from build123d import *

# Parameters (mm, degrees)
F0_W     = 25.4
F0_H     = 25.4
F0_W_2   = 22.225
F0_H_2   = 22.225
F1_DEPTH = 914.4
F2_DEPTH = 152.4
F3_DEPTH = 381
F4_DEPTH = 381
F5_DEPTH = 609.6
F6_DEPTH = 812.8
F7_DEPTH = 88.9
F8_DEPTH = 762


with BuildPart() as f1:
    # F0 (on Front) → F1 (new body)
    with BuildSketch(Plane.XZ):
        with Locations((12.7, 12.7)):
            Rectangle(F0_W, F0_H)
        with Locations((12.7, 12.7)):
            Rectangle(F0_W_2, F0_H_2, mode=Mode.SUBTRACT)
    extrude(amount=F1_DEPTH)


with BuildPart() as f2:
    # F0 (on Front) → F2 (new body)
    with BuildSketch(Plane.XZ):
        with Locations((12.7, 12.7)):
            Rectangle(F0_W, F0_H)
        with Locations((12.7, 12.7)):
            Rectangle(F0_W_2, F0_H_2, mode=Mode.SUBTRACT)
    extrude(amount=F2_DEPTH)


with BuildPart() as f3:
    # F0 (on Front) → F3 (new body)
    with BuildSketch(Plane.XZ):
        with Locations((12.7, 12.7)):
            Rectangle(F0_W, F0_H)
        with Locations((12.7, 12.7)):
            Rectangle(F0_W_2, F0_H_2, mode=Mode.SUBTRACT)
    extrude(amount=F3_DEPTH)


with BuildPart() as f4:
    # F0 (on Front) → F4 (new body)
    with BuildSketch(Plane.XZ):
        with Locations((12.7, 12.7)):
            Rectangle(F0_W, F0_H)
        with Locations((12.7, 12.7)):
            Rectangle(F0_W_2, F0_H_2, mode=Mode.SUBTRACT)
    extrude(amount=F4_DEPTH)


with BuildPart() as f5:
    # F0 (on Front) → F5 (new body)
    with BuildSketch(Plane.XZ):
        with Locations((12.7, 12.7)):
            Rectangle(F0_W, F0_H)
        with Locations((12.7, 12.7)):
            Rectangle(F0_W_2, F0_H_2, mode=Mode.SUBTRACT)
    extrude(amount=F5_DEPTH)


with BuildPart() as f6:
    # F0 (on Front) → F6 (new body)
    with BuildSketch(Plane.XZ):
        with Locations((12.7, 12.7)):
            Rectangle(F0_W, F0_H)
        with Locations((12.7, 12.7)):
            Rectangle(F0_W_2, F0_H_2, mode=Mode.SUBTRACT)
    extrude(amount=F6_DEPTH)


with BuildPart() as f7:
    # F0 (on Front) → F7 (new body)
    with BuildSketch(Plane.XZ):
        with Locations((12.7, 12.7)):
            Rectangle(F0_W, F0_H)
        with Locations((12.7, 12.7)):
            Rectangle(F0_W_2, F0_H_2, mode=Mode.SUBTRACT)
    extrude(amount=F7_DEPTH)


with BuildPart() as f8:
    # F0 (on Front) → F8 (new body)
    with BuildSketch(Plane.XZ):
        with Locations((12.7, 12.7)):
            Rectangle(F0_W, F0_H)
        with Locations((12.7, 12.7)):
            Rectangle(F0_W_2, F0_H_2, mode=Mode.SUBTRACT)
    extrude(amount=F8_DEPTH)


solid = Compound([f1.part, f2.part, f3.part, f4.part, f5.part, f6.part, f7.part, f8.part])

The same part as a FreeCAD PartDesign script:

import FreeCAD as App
import Part
import Sketcher
from FreeCAD import Vector
Q = App.Units.Quantity


def add_polygon(sketch, points):
    """Adds a closed chain of lines whose ends are joined by coincident constraints."""
    first, n = sketch.GeometryCount, len(points)
    for a, b in zip(points, points[1:] + points[:1]):
        sketch.addGeometry(Part.LineSegment(App.Vector(*a, 0), App.Vector(*b, 0)), False)
    for i in range(n):
        sketch.addConstraint(Sketcher.Constraint("Coincident", first + i, 2, first + (i + 1) % n, 1))

doc = App.newDocument("Part")
body = doc.addObject("PartDesign::Body", "Body")

# Sketch on XZ plane
sketch1 = body.newObject("Sketcher::SketchObject", "Sketch")
sketch1.AttachmentSupport = (doc.getObject("XZ_Plane"), [""])
sketch1.MapMode = "FlatFace"
add_polygon(sketch1, [(0, 25), (0, 0), (25, 0), (25, 25)])  # lines 0-3
add_polygon(sketch1, [(24, 2), (2, 2), (2, 24), (24, 24)])  # lines 4-7
sketch1.addConstraint([
    Sketcher.Constraint("Vertical", 0),
    Sketcher.Constraint("Horizontal", 1),
    Sketcher.Constraint("Vertical", 2),
    Sketcher.Constraint("Horizontal", 3),
    Sketcher.Constraint("Horizontal", 4),
    Sketcher.Constraint("Vertical", 5),
    Sketcher.Constraint("Horizontal", 6),
    Sketcher.Constraint("Vertical", 7),
    Sketcher.Constraint("Coincident", 0, 2, -1, 1),
    Sketcher.Constraint("Equal", 3, 0),
    Sketcher.Constraint("Equal", 6, 5),
    Sketcher.Constraint("DistanceX", 1, 1, 1, 2, Q("1 in")),
    Sketcher.Constraint("DistanceX", 4, 2, 4, 1, Q("0.875 in")),
    Sketcher.Constraint("DistanceX", -1, 1, 4, 2, Q("0.0625 in")),
    Sketcher.Constraint("DistanceY", -1, 1, 4, 2, Q("0.0625 in")),
])
pad1 = body.newObject("PartDesign::Pad", "Pad")
pad1.Profile = sketch1
pad1.Length = Q("36 in")
body2 = doc.addObject("PartDesign::Body", "Body001")

# Sketch on XZ plane
sketch2 = body2.newObject("Sketcher::SketchObject", "Sketch001")
sketch2.AttachmentSupport = (doc.getObject("XZ_Plane001"), [""])
sketch2.MapMode = "FlatFace"
add_polygon(sketch2, [(0, 25), (0, 0), (25, 0), (25, 25)])  # lines 0-3
add_polygon(sketch2, [(24, 2), (2, 2), (2, 24), (24, 24)])  # lines 4-7
sketch2.addConstraint([
    Sketcher.Constraint("Vertical", 0),
    Sketcher.Constraint("Horizontal", 1),
    Sketcher.Constraint("Vertical", 2),
    Sketcher.Constraint("Horizontal", 3),
    Sketcher.Constraint("Horizontal", 4),
    Sketcher.Constraint("Vertical", 5),
    Sketcher.Constraint("Horizontal", 6),
    Sketcher.Constraint("Vertical", 7),
    Sketcher.Constraint("Coincident", 0, 2, -1, 1),
    Sketcher.Constraint("Equal", 3, 0),
    Sketcher.Constraint("Equal", 6, 5),
    Sketcher.Constraint("DistanceX", 1, 1, 1, 2, Q("1 in")),
    Sketcher.Constraint("DistanceX", 4, 2, 4, 1, Q("0.875 in")),
    Sketcher.Constraint("DistanceX", -1, 1, 4, 2, Q("0.0625 in")),
    Sketcher.Constraint("DistanceY", -1, 1, 4, 2, Q("0.0625 in")),
])
pad2 = body2.newObject("PartDesign::Pad", "Pad001")
pad2.Profile = sketch2
pad2.Length = Q("6 in")
body3 = doc.addObject("PartDesign::Body", "Body002")

# Sketch on XZ plane
sketch3 = body3.newObject("Sketcher::SketchObject", "Sketch002")
sketch3.AttachmentSupport = (doc.getObject("XZ_Plane002"), [""])
sketch3.MapMode = "FlatFace"
add_polygon(sketch3, [(0, 25), (0, 0), (25, 0), (25, 25)])  # lines 0-3
add_polygon(sketch3, [(24, 2), (2, 2), (2, 24), (24, 24)])  # lines 4-7
sketch3.addConstraint([
    Sketcher.Constraint("Vertical", 0),
    Sketcher.Constraint("Horizontal", 1),
    Sketcher.Constraint("Vertical", 2),
    Sketcher.Constraint("Horizontal", 3),
    Sketcher.Constraint("Horizontal", 4),
    Sketcher.Constraint("Vertical", 5),
    Sketcher.Constraint("Horizontal", 6),
    Sketcher.Constraint("Vertical", 7),
    Sketcher.Constraint("Coincident", 0, 2, -1, 1),
    Sketcher.Constraint("Equal", 3, 0),
    Sketcher.Constraint("Equal", 6, 5),
    Sketcher.Constraint("DistanceX", 1, 1, 1, 2, Q("1 in")),
    Sketcher.Constraint("DistanceX", 4, 2, 4, 1, Q("0.875 in")),
    Sketcher.Constraint("DistanceX", -1, 1, 4, 2, Q("0.0625 in")),
    Sketcher.Constraint("DistanceY", -1, 1, 4, 2, Q("0.0625 in")),
])
pad3 = body3.newObject("PartDesign::Pad", "Pad002")
pad3.Profile = sketch3
pad3.Length = Q("15 in")
body4 = doc.addObject("PartDesign::Body", "Body003")

# Sketch on XZ plane
sketch4 = body4.newObject("Sketcher::SketchObject", "Sketch003")
sketch4.AttachmentSupport = (doc.getObject("XZ_Plane003"), [""])
sketch4.MapMode = "FlatFace"
add_polygon(sketch4, [(0, 25), (0, 0), (25, 0), (25, 25)])  # lines 0-3
add_polygon(sketch4, [(24, 2), (2, 2), (2, 24), (24, 24)])  # lines 4-7
sketch4.addConstraint([
    Sketcher.Constraint("Vertical", 0),
    Sketcher.Constraint("Horizontal", 1),
    Sketcher.Constraint("Vertical", 2),
    Sketcher.Constraint("Horizontal", 3),
    Sketcher.Constraint("Horizontal", 4),
    Sketcher.Constraint("Vertical", 5),
    Sketcher.Constraint("Horizontal", 6),
    Sketcher.Constraint("Vertical", 7),
    Sketcher.Constraint("Coincident", 0, 2, -1, 1),
    Sketcher.Constraint("Equal", 3, 0),
    Sketcher.Constraint("Equal", 6, 5),
    Sketcher.Constraint("DistanceX", 1, 1, 1, 2, Q("1 in")),
    Sketcher.Constraint("DistanceX", 4, 2, 4, 1, Q("0.875 in")),
    Sketcher.Constraint("DistanceX", -1, 1, 4, 2, Q("0.0625 in")),
    Sketcher.Constraint("DistanceY", -1, 1, 4, 2, Q("0.0625 in")),
])
pad4 = body4.newObject("PartDesign::Pad", "Pad003")
pad4.Profile = sketch4
pad4.Length = Q("15 in")
body5 = doc.addObject("PartDesign::Body", "Body004")

# Sketch on XZ plane
sketch5 = body5.newObject("Sketcher::SketchObject", "Sketch004")
sketch5.AttachmentSupport = (doc.getObject("XZ_Plane004"), [""])
sketch5.MapMode = "FlatFace"
add_polygon(sketch5, [(0, 25), (0, 0), (25, 0), (25, 25)])  # lines 0-3
add_polygon(sketch5, [(24, 2), (2, 2), (2, 24), (24, 24)])  # lines 4-7
sketch5.addConstraint([
    Sketcher.Constraint("Vertical", 0),
    Sketcher.Constraint("Horizontal", 1),
    Sketcher.Constraint("Vertical", 2),
    Sketcher.Constraint("Horizontal", 3),
    Sketcher.Constraint("Horizontal", 4),
    Sketcher.Constraint("Vertical", 5),
    Sketcher.Constraint("Horizontal", 6),
    Sketcher.Constraint("Vertical", 7),
    Sketcher.Constraint("Coincident", 0, 2, -1, 1),
    Sketcher.Constraint("Equal", 3, 0),
    Sketcher.Constraint("Equal", 6, 5),
    Sketcher.Constraint("DistanceX", 1, 1, 1, 2, Q("1 in")),
    Sketcher.Constraint("DistanceX", 4, 2, 4, 1, Q("0.875 in")),
    Sketcher.Constraint("DistanceX", -1, 1, 4, 2, Q("0.0625 in")),
    Sketcher.Constraint("DistanceY", -1, 1, 4, 2, Q("0.0625 in")),
])
pad5 = body5.newObject("PartDesign::Pad", "Pad004")
pad5.Profile = sketch5
pad5.Length = Q("24 in")
body6 = doc.addObject("PartDesign::Body", "Body005")

# Sketch on XZ plane
sketch6 = body6.newObject("Sketcher::SketchObject", "Sketch005")
sketch6.AttachmentSupport = (doc.getObject("XZ_Plane005"), [""])
sketch6.MapMode = "FlatFace"
add_polygon(sketch6, [(0, 25), (0, 0), (25, 0), (25, 25)])  # lines 0-3
add_polygon(sketch6, [(24, 2), (2, 2), (2, 24), (24, 24)])  # lines 4-7
sketch6.addConstraint([
    Sketcher.Constraint("Vertical", 0),
    Sketcher.Constraint("Horizontal", 1),
    Sketcher.Constraint("Vertical", 2),
    Sketcher.Constraint("Horizontal", 3),
    Sketcher.Constraint("Horizontal", 4),
    Sketcher.Constraint("Vertical", 5),
    Sketcher.Constraint("Horizontal", 6),
    Sketcher.Constraint("Vertical", 7),
    Sketcher.Constraint("Coincident", 0, 2, -1, 1),
    Sketcher.Constraint("Equal", 3, 0),
    Sketcher.Constraint("Equal", 6, 5),
    Sketcher.Constraint("DistanceX", 1, 1, 1, 2, Q("1 in")),
    Sketcher.Constraint("DistanceX", 4, 2, 4, 1, Q("0.875 in")),
    Sketcher.Constraint("DistanceX", -1, 1, 4, 2, Q("0.0625 in")),
    Sketcher.Constraint("DistanceY", -1, 1, 4, 2, Q("0.0625 in")),
])
pad6 = body6.newObject("PartDesign::Pad", "Pad005")
pad6.Profile = sketch6
pad6.Length = Q("32 in")
body7 = doc.addObject("PartDesign::Body", "Body006")

# Sketch on XZ plane
sketch7 = body7.newObject("Sketcher::SketchObject", "Sketch006")
sketch7.AttachmentSupport = (doc.getObject("XZ_Plane006"), [""])
sketch7.MapMode = "FlatFace"
add_polygon(sketch7, [(0, 25), (0, 0), (25, 0), (25, 25)])  # lines 0-3
add_polygon(sketch7, [(24, 2), (2, 2), (2, 24), (24, 24)])  # lines 4-7
sketch7.addConstraint([
    Sketcher.Constraint("Vertical", 0),
    Sketcher.Constraint("Horizontal", 1),
    Sketcher.Constraint("Vertical", 2),
    Sketcher.Constraint("Horizontal", 3),
    Sketcher.Constraint("Horizontal", 4),
    Sketcher.Constraint("Vertical", 5),
    Sketcher.Constraint("Horizontal", 6),
    Sketcher.Constraint("Vertical", 7),
    Sketcher.Constraint("Coincident", 0, 2, -1, 1),
    Sketcher.Constraint("Equal", 3, 0),
    Sketcher.Constraint("Equal", 6, 5),
    Sketcher.Constraint("DistanceX", 1, 1, 1, 2, Q("1 in")),
    Sketcher.Constraint("DistanceX", 4, 2, 4, 1, Q("0.875 in")),
    Sketcher.Constraint("DistanceX", -1, 1, 4, 2, Q("0.0625 in")),
    Sketcher.Constraint("DistanceY", -1, 1, 4, 2, Q("0.0625 in")),
])
pad7 = body7.newObject("PartDesign::Pad", "Pad006")
pad7.Profile = sketch7
pad7.Length = Q("3.5 in")
body8 = doc.addObject("PartDesign::Body", "Body007")

# Sketch on XZ plane
sketch8 = body8.newObject("Sketcher::SketchObject", "Sketch007")
sketch8.AttachmentSupport = (doc.getObject("XZ_Plane007"), [""])
sketch8.MapMode = "FlatFace"
add_polygon(sketch8, [(0, 25), (0, 0), (25, 0), (25, 25)])  # lines 0-3
add_polygon(sketch8, [(24, 2), (2, 2), (2, 24), (24, 24)])  # lines 4-7
sketch8.addConstraint([
    Sketcher.Constraint("Vertical", 0),
    Sketcher.Constraint("Horizontal", 1),
    Sketcher.Constraint("Vertical", 2),
    Sketcher.Constraint("Horizontal", 3),
    Sketcher.Constraint("Horizontal", 4),
    Sketcher.Constraint("Vertical", 5),
    Sketcher.Constraint("Horizontal", 6),
    Sketcher.Constraint("Vertical", 7),
    Sketcher.Constraint("Coincident", 0, 2, -1, 1),
    Sketcher.Constraint("Equal", 3, 0),
    Sketcher.Constraint("Equal", 6, 5),
    Sketcher.Constraint("DistanceX", 1, 1, 1, 2, Q("1 in")),
    Sketcher.Constraint("DistanceX", 4, 2, 4, 1, Q("0.875 in")),
    Sketcher.Constraint("DistanceX", -1, 1, 4, 2, Q("0.0625 in")),
    Sketcher.Constraint("DistanceY", -1, 1, 4, 2, Q("0.0625 in")),
])
pad8 = body8.newObject("PartDesign::Pad", "Pad007")
pad8.Profile = sketch8
pad8.Length = Q("30 in")

doc.recompute()
